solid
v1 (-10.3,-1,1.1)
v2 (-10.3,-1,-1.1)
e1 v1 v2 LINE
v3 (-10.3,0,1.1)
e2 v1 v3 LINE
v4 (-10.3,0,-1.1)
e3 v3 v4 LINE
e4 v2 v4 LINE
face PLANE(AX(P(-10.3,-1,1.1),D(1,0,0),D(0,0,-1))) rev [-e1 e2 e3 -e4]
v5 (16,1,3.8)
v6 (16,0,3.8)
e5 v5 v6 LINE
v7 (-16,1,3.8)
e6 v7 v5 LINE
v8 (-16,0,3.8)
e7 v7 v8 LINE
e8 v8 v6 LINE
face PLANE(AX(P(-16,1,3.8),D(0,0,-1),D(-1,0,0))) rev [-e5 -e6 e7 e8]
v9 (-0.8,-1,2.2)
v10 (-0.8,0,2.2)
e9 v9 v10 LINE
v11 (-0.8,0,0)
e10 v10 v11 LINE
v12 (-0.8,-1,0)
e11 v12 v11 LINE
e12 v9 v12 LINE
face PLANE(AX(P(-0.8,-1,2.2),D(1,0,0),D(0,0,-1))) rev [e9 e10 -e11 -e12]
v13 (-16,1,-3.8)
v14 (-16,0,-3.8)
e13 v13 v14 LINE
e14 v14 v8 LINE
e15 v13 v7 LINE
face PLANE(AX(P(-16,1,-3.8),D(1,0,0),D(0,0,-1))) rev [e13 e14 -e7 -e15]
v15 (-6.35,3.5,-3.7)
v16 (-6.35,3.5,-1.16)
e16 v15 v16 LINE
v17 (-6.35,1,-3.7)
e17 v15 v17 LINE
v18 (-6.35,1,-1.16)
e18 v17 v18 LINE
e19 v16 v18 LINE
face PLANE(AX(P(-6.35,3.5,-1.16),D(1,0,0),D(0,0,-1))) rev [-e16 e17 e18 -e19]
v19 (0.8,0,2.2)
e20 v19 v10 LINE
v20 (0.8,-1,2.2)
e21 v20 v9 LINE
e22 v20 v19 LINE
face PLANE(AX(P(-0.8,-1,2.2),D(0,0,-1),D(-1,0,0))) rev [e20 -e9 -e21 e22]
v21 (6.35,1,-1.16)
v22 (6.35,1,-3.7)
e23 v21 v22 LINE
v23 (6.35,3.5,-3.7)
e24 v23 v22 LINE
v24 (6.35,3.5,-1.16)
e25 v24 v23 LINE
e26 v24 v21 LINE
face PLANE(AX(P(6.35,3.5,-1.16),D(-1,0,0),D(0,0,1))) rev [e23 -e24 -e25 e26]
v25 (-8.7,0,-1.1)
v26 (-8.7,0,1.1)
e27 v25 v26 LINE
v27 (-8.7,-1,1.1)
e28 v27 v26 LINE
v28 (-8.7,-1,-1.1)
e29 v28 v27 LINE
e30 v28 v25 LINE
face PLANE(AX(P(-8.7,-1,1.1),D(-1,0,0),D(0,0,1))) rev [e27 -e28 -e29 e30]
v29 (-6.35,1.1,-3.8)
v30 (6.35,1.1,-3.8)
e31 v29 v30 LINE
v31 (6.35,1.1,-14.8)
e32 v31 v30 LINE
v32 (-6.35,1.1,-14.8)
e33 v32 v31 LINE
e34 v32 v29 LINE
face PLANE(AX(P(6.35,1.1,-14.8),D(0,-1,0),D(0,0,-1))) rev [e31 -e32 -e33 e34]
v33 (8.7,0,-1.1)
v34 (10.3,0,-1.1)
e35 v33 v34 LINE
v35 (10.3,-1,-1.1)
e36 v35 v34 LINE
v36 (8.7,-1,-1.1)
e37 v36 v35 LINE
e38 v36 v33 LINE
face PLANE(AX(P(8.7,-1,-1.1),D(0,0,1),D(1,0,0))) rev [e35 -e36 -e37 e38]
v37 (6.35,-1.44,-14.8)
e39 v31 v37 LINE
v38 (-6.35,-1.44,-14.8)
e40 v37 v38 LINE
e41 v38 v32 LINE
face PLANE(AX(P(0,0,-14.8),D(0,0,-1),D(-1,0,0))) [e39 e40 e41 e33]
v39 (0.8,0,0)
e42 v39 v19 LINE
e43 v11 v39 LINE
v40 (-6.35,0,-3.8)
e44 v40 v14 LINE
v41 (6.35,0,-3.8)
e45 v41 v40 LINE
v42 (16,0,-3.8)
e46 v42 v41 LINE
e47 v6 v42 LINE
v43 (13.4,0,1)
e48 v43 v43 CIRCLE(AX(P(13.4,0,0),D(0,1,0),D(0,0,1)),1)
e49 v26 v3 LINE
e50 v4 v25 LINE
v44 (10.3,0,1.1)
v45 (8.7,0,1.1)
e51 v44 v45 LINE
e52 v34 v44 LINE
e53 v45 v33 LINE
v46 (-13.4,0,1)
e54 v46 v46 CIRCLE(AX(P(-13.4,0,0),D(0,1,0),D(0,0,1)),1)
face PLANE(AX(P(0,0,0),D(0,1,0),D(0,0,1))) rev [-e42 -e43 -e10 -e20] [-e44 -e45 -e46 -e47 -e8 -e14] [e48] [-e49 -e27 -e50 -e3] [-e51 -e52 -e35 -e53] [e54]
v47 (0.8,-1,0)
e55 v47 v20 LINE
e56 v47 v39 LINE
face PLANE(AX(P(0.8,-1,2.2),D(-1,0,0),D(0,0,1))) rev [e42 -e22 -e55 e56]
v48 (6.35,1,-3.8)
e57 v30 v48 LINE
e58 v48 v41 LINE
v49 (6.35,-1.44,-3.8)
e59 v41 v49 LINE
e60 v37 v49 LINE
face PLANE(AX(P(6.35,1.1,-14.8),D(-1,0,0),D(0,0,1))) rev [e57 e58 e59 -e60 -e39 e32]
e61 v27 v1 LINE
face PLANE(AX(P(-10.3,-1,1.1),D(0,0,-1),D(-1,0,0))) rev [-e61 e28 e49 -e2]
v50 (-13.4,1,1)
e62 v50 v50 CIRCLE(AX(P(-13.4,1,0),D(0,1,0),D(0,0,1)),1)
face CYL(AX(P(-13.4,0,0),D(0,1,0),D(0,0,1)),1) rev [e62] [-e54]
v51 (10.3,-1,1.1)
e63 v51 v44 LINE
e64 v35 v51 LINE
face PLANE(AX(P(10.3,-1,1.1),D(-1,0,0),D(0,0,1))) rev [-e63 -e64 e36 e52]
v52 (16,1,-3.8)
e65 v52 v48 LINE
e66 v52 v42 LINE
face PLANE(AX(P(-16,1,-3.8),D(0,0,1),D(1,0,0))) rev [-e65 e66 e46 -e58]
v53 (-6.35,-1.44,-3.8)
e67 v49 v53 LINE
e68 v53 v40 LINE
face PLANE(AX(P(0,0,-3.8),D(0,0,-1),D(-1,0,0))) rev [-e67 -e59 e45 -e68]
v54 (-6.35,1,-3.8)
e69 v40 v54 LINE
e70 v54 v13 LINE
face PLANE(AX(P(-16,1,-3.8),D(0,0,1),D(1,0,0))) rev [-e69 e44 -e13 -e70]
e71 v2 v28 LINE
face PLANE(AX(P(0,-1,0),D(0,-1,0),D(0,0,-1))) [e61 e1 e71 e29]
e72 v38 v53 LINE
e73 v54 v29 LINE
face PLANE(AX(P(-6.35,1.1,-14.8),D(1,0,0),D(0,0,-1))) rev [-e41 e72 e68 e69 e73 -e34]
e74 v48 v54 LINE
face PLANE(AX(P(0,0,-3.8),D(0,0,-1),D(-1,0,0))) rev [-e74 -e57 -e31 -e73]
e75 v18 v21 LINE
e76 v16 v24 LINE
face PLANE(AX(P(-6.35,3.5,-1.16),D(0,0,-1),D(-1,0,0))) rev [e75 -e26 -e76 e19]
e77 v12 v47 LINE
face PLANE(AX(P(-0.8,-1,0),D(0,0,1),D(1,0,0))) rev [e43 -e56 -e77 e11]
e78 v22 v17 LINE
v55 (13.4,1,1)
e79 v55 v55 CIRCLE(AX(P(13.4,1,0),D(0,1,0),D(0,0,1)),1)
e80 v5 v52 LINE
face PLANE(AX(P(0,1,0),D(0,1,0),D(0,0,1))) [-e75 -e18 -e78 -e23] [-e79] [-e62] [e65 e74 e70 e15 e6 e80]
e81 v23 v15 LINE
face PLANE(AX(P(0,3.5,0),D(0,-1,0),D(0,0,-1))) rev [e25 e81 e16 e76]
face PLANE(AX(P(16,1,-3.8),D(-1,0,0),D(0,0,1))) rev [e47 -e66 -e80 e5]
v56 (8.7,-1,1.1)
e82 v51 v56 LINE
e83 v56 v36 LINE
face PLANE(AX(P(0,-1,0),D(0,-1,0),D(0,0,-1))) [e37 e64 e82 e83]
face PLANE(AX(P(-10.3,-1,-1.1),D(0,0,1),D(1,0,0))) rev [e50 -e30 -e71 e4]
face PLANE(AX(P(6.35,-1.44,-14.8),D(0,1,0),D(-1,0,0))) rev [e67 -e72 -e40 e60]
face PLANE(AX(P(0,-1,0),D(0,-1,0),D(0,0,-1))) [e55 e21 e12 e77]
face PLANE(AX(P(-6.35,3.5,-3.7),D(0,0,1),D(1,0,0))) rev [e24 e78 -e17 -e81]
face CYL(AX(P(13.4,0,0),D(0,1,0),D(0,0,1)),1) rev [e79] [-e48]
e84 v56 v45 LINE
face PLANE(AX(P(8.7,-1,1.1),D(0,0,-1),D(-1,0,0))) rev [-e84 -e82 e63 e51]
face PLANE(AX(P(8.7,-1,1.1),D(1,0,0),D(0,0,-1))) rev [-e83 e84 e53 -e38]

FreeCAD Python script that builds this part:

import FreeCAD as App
import Part
import Sketcher
Q = App.Units.Quantity


def add_polygon(sketch, points):
    """Adds a closed chain of lines whose ends are joined by coincident constraints."""
    first, n = sketch.GeometryCount, len(points)
    for a, b in zip(points, points[1:] + points[:1]):
        sketch.addGeometry(Part.LineSegment(App.Vector(*a, 0), App.Vector(*b, 0)), False)
    for i in range(n):
        sketch.addConstraint(Sketcher.Constraint("Coincident", first + i, 2, first + (i + 1) % n, 1))

doc = App.newDocument("Part")
body = doc.addObject("PartDesign::Body", "Body")

sketch1 = body.newObject("Sketcher::SketchObject", "Sketch")
sketch1.AttachmentSupport = (doc.getObject("XZ_Plane"), [""])
sketch1.MapMode = "FlatFace"
add_polygon(sketch1, [(-16, -4), (-16, 4), (16, 4), (16, -4)])
sketch1.addConstraint([
    Sketcher.Constraint("Vertical", 0),
    Sketcher.Constraint("Horizontal", 1),
    Sketcher.Constraint("Vertical", 2),
    Sketcher.Constraint("Horizontal", 3),
    Sketcher.Constraint("Symmetric", 0, 2, 2, 2, -1, 1),
    Sketcher.Constraint("DistanceX", 1, 1, 1, 2, Q("32 mm")),
    Sketcher.Constraint("DistanceY", 0, 1, 0, 2, Q("7.6 mm")),
])
pad1 = body.newObject("PartDesign::Pad", "Pad")
pad1.Profile = sketch1
pad1.Length = 1
pad1.Reversed = True

sketch2 = body.newObject("Sketcher::SketchObject", "Sketch001")
sketch2.AttachmentSupport = (doc.getObject("XZ_Plane"), [""])
sketch2.MapMode = "FlatFace"
sketch2.AttachmentOffset = App.Placement(App.Vector(0, 0, -1), App.Rotation())
sketch2.addGeometry([
    Part.Circle(App.Vector(-13.4, 0, 0), App.Vector(0, 0, 1), 1),
    Part.Circle(App.Vector(13.4, 0, 0), App.Vector(0, 0, 1), 1),
], False)
sketch2.addConstraint([
    Sketcher.Constraint("Equal", 0, 1),
    Sketcher.Constraint("Symmetric", 0, 3, 1, 3, -1, 1),
    Sketcher.Constraint("PointOnObject", 0, 3, -1),
    Sketcher.Constraint("Diameter", 0, Q("2 mm")),
    Sketcher.Constraint("DistanceX", 0, 3, -1, 1, Q("13.4 mm")),
])
pocket1 = body.newObject("PartDesign::Pocket", "Pocket")
pocket1.Profile = sketch2
pocket1.Type = "ThroughAll"
pocket1.Reversed = True

sketch3 = body.newObject("Sketcher::SketchObject", "Sketch002")
sketch3.AttachmentSupport = (doc.getObject("XZ_Plane"), [""])
sketch3.MapMode = "FlatFace"
add_polygon(sketch3, [(-10.3, 1.1), (-10.3, -1.1), (-8.7, -1.1), (-8.7, 1.1)])
add_polygon(sketch3, [(8.7, 1.1), (8.7, -1.1), (10.3, -1.1), (10.3, 1.1)])
add_polygon(sketch3, [(-0.8, 2.2), (-0.8, 0), (0.8, 0), (0.8, 2.2)])
sketch3.addConstraint([
    Sketcher.Constraint("Vertical", 0),
    Sketcher.Constraint("Horizontal", 1),
    Sketcher.Constraint("Vertical", 2),
    Sketcher.Constraint("Horizontal", 3),
    Sketcher.Constraint("Vertical", 4),
    Sketcher.Constraint("Horizontal", 5),
    Sketcher.Constraint("Vertical", 6),
    Sketcher.Constraint("Horizontal", 7),
    Sketcher.Constraint("Vertical", 8),
    Sketcher.Constraint("Horizontal", 9),
    Sketcher.Constraint("Vertical", 10),
    Sketcher.Constraint("Horizontal", 11),
    Sketcher.Constraint("Symmetric", 2, 2, 4, 2, -1, 1),
    Sketcher.Constraint("Symmetric", 0, 2, 6, 2, -1, 1),
    Sketcher.Constraint("Symmetric", 8, 2, 9, 2, -1, 1),
    Sketcher.Constraint("Horizontal", 1, 2, 4, 2),
    Sketcher.Constraint("Equal", 7, 9),
    Sketcher.Constraint("Equal", 6, 8),
    Sketcher.Constraint("DistanceX", 1, 1, 1, 2, Q("1.6 mm")),
    Sketcher.Constraint("DistanceY", 0, 2, 0, 1, Q("2.2 mm")),
    Sketcher.Constraint("DistanceX", 0, 2, 4, 2, Q("19 mm")),
])
pad2 = body.newObject("PartDesign::Pad", "Pad001")
pad2.Profile = sketch3
pad2.Length = 1

sketch4 = body.newObject("Sketcher::SketchObject", "Sketch003")
sketch4.AttachmentSupport = (doc.getObject("XY_Plane"), [""])
sketch4.MapMode = "FlatFace"
sketch4.AttachmentOffset = App.Placement(App.Vector(0, 0, -3.8), App.Rotation())
add_polygon(sketch4, [(6.3, 1.1), (6.3, -1.4), (-6.3, -1.4), (-6.3, 1.1)])
sketch4.addConstraint([
    Sketcher.Constraint("Vertical", 0),
    Sketcher.Constraint("Horizontal", 1),
    Sketcher.Constraint("Vertical", 2),
    Sketcher.Constraint("Horizontal", 3),
    Sketcher.Constraint("DistanceX", 1, 2, 1, 1, Q("12.7 mm")),
    Sketcher.Constraint("DistanceY", 0, 2, 0, 1, Q("2.54 mm")),
    Sketcher.Constraint("DistanceY", -1, 1, 2, 2, Q("1.1 mm")),
    Sketcher.Constraint("DistanceX", -1, 1, 0, 2, Q("6.35 mm")),
])
pad3 = body.newObject("PartDesign::Pad", "Pad002")
pad3.Profile = sketch4
pad3.Length = 11
pad3.Reversed = True

sketch5 = body.newObject("Sketcher::SketchObject", "Sketch004")
sketch5.AttachmentSupport = (doc.getObject("XZ_Plane"), [""])
sketch5.MapMode = "FlatFace"
sketch5.AttachmentOffset = App.Placement(App.Vector(0, 0, -1), App.Rotation())
add_polygon(sketch5, [(-6.3, -3.7), (-6.3, -1.2), (6.3, -1.2), (6.3, -3.7)])
sketch5.addConstraint([
    Sketcher.Constraint("Vertical", 0),
    Sketcher.Constraint("Horizontal", 1),
    Sketcher.Constraint("Vertical", 2),
    Sketcher.Constraint("Horizontal", 3),
    Sketcher.Constraint("DistanceX", 1, 1, 1, 2, Q("12.7 mm")),
    Sketcher.Constraint("DistanceY", 0, 1, 0, 2, Q("2.54 mm")),
    Sketcher.Constraint("DistanceY", 2, 2, -1, 1, Q("3.7 mm")),
    Sketcher.Constraint("DistanceX", 0, 2, -1, 1, Q("6.35 mm")),
])
pad4 = body.newObject("PartDesign::Pad", "Pad003")
pad4.Profile = sketch5
pad4.Length = 2.5
pad4.Reversed = True

doc.recompute()
